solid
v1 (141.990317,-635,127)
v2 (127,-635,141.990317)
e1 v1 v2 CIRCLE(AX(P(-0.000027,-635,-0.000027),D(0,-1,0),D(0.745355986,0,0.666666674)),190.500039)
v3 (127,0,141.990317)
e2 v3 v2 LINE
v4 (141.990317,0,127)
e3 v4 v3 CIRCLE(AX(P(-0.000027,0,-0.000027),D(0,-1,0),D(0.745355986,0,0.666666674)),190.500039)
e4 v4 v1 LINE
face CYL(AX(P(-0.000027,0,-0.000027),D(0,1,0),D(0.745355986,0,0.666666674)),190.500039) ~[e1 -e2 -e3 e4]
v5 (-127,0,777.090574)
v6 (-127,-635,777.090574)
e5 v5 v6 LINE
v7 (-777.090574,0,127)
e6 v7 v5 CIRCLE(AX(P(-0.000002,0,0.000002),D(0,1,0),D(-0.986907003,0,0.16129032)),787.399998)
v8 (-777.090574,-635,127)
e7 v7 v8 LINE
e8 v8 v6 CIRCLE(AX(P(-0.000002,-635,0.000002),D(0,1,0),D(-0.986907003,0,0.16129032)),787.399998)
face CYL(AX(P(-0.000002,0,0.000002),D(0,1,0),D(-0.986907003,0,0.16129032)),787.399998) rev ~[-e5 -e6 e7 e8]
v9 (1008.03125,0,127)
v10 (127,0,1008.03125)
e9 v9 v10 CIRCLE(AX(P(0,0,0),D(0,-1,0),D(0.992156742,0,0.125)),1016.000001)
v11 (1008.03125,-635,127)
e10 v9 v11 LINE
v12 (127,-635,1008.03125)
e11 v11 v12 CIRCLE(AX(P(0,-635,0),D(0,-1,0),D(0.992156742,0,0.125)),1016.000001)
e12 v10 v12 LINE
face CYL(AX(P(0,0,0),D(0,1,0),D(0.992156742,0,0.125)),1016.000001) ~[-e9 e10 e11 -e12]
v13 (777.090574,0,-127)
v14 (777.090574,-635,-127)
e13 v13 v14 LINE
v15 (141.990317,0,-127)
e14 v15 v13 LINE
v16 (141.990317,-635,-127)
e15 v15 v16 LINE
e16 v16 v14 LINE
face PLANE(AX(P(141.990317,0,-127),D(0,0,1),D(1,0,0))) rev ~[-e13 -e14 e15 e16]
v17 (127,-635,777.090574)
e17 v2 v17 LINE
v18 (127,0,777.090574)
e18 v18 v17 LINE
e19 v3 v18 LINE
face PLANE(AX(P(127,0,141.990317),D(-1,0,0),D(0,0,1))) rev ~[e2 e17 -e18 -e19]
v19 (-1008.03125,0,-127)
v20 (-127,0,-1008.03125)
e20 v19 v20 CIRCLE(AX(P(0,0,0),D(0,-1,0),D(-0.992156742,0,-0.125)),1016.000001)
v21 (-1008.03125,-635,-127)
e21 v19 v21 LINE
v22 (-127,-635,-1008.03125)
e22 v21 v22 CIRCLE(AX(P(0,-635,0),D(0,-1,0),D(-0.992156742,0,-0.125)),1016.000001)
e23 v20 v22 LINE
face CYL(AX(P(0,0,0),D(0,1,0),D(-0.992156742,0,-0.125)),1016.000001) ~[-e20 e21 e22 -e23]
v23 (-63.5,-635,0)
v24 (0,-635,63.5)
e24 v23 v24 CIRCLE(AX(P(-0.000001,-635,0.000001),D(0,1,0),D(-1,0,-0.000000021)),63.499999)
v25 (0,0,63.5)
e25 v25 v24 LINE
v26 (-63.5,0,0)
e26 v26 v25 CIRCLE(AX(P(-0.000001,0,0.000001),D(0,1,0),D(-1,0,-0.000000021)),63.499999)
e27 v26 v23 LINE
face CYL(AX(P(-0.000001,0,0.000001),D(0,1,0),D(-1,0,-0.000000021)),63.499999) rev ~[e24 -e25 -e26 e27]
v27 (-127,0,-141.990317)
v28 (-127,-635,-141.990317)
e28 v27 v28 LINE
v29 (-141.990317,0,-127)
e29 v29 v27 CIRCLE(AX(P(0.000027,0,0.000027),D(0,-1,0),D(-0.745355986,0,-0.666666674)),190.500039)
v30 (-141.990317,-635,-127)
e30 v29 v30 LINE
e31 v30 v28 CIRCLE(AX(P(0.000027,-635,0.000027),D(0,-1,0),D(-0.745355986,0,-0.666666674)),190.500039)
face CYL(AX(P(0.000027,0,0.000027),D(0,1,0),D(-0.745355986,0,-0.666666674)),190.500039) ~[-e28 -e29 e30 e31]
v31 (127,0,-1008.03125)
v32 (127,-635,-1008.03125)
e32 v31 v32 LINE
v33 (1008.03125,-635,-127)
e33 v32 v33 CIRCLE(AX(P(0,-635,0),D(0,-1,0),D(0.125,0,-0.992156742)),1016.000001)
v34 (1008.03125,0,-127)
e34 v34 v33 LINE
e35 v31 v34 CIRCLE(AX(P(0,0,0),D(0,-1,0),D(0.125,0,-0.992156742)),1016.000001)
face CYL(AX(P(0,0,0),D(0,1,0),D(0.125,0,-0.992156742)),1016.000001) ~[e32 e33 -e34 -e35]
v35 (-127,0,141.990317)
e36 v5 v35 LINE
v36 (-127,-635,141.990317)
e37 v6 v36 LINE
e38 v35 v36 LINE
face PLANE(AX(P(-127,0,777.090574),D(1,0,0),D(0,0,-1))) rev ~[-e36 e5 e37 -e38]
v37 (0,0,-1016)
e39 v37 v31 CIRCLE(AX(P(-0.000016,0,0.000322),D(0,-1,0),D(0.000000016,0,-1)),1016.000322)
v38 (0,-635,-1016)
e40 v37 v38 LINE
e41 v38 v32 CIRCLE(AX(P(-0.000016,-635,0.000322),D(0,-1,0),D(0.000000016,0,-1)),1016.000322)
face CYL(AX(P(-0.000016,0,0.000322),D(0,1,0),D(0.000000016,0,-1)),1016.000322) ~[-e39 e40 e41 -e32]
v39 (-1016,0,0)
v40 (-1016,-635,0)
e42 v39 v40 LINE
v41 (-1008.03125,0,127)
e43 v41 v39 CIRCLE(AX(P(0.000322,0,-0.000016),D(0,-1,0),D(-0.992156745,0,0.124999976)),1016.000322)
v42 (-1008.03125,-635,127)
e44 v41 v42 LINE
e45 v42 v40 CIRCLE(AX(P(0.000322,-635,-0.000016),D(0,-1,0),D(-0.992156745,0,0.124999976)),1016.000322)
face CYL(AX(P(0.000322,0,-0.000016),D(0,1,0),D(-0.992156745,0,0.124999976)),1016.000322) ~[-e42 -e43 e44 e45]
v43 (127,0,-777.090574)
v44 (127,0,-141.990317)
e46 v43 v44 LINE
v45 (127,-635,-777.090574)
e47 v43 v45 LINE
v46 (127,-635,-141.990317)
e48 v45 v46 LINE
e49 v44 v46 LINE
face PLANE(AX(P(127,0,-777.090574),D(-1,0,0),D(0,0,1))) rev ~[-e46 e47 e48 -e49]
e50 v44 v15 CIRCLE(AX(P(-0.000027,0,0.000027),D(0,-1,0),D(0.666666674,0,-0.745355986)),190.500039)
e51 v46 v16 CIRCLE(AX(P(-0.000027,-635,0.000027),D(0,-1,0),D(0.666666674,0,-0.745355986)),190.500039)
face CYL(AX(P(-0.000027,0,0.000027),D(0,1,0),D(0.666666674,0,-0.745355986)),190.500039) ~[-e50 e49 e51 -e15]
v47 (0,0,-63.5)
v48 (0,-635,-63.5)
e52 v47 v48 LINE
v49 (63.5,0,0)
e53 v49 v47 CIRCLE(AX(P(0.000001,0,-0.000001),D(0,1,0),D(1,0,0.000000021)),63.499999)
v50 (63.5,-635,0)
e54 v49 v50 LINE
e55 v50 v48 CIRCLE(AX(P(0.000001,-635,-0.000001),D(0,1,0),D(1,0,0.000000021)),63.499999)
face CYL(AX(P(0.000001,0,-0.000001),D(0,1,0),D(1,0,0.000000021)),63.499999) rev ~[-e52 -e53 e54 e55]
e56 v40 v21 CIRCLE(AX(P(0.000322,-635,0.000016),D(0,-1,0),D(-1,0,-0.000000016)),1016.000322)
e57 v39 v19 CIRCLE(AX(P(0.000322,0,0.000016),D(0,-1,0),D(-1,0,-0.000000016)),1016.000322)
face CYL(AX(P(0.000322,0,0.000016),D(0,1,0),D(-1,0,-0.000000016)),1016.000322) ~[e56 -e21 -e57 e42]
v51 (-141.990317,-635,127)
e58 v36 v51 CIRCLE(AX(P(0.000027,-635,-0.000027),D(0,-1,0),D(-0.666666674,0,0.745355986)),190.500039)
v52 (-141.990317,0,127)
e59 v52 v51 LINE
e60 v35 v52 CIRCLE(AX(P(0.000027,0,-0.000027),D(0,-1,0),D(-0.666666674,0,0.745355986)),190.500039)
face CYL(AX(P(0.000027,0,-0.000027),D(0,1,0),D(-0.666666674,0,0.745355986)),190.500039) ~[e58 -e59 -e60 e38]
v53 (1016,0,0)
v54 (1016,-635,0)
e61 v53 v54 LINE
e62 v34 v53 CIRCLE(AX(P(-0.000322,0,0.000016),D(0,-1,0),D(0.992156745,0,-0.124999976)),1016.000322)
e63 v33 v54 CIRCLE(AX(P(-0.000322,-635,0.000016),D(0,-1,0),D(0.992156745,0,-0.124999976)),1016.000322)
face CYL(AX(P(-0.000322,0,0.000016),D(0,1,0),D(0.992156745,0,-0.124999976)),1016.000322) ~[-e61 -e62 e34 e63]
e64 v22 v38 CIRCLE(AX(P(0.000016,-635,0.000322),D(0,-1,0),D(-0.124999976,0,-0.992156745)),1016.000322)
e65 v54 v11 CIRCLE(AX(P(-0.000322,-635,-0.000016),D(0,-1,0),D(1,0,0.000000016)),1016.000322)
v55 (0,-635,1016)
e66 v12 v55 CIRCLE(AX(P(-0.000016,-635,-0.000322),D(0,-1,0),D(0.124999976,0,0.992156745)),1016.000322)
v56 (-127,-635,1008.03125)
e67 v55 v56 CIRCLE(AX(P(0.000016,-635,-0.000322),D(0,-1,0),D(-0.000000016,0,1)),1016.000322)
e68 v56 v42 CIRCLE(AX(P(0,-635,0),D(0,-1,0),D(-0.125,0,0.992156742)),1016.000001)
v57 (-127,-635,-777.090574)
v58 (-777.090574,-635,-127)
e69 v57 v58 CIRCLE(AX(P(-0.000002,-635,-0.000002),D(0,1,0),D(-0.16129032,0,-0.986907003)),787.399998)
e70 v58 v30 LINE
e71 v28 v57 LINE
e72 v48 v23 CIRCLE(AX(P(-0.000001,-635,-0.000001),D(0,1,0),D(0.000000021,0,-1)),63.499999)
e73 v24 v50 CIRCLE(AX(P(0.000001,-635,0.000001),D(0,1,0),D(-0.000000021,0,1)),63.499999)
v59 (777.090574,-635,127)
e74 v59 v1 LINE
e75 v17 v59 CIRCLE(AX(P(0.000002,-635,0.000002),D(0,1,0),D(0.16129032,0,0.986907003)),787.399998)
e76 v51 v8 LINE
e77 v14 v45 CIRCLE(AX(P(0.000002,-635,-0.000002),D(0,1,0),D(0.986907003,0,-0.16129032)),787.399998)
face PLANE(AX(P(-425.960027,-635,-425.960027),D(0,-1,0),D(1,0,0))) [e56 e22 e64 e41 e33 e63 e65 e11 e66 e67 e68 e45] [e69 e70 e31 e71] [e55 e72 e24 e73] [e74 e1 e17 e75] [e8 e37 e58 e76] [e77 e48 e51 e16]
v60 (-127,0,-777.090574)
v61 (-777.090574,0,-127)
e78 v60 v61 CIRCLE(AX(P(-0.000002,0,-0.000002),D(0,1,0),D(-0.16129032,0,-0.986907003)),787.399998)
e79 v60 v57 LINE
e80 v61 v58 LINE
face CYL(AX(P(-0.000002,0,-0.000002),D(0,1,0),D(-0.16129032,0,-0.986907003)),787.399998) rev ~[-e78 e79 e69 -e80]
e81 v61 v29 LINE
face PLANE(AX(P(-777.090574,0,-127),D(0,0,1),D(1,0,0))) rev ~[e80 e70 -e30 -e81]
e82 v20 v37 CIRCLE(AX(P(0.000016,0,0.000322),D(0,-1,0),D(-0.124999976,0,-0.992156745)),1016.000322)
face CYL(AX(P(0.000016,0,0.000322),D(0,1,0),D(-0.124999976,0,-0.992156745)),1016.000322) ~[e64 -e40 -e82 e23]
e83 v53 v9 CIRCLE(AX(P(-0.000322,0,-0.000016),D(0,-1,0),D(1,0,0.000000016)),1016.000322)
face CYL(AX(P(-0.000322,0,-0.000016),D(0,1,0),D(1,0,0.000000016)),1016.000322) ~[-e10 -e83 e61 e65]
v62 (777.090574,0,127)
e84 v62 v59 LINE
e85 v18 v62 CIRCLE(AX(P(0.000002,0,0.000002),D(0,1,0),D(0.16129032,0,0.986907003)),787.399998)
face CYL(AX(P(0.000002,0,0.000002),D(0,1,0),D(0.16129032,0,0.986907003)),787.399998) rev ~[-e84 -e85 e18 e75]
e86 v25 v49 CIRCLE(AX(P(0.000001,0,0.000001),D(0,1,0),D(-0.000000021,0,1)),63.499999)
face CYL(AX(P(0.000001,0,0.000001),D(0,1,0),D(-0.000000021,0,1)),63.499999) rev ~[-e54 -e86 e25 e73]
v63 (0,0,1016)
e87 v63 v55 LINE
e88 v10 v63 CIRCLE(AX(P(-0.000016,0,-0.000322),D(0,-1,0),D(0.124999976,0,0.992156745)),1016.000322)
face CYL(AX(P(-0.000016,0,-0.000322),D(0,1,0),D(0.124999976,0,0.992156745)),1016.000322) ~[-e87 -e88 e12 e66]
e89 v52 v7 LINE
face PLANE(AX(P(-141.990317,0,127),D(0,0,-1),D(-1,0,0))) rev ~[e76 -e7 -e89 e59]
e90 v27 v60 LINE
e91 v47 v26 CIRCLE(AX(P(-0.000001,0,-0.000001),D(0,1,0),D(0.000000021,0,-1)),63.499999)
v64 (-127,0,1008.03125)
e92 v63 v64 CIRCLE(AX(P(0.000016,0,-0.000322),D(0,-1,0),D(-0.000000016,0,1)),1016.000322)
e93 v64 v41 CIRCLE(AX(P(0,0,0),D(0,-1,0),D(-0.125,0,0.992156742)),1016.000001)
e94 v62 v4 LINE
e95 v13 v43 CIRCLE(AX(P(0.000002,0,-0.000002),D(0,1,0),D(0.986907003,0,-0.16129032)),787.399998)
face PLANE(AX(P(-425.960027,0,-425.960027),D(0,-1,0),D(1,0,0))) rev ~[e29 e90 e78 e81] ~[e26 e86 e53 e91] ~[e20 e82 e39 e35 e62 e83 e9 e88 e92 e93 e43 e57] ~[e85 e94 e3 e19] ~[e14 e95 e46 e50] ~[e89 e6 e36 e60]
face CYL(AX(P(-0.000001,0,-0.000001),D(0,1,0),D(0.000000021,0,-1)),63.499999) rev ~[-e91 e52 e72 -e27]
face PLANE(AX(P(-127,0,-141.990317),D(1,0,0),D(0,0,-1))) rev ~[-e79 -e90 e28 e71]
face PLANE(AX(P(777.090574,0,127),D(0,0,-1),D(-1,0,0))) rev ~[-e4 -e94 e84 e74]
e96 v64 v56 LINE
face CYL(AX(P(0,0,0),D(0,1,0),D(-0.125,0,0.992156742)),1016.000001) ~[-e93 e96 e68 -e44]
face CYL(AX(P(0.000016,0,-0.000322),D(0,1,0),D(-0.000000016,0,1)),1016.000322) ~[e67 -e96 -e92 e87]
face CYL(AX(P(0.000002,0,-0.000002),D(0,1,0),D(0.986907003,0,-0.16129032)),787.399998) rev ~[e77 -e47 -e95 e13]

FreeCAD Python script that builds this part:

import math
import FreeCAD as App
import Part
import Sketcher
from FreeCAD import Vector
Q = App.Units.Quantity

doc = App.newDocument("Part")
body = doc.addObject("PartDesign::Body", "Body")

# Sketch on XZ plane
sketch1 = body.newObject("Sketcher::SketchObject", "Sketch")
sketch1.AttachmentSupport = (doc.getObject("XZ_Plane"), [""])
sketch1.MapMode = "FlatFace"
sketch1.addGeometry([
    Part.ArcOfCircle(Part.Circle(Vector(0.000016, 0.000322, 0), Vector(0, 0, 1), 1016.000322), math.radians(-97.180754), math.radians(-90.000001)),  # 0
    Part.ArcOfCircle(Part.Circle(Vector(-0.000016, 0.000322, 0), Vector(0, 0, 1), 1016.000322), math.radians(-89.999999), math.radians(-82.819246)),  # 1
    Part.ArcOfCircle(Part.Circle(Vector(0, 0, 0), Vector(0, 0, 1), 1016.000001), math.radians(-82.819244), math.radians(-7.180756)),  # 2
    Part.ArcOfCircle(Part.Circle(Vector(-0.000322, 0.000016, 0), Vector(0, 0, 1), 1016.000322), math.radians(-7.180754), math.radians(-0.000001)),  # 3
    Part.ArcOfCircle(Part.Circle(Vector(-0.000322, -0.000016, 0), Vector(0, 0, 1), 1016.000322), math.radians(0.000001), math.radians(7.180754)),  # 4
    Part.ArcOfCircle(Part.Circle(Vector(0, 0, 0), Vector(0, 0, 1), 1016.000001), math.radians(7.180756), math.radians(82.819244)),  # 5
    Part.ArcOfCircle(Part.Circle(Vector(-0.000016, -0.000322, 0), Vector(0, 0, 1), 1016.000322), math.radians(82.819246), math.radians(89.999999)),  # 6
    Part.ArcOfCircle(Part.Circle(Vector(0.000016, -0.000322, 0), Vector(0, 0, 1), 1016.000322), math.radians(90.000001), math.radians(97.180754)),  # 7
    Part.ArcOfCircle(Part.Circle(Vector(0, 0, 0), Vector(0, 0, 1), 1016.000001), math.radians(97.180756), math.radians(172.819244)),  # 8
    Part.ArcOfCircle(Part.Circle(Vector(0.000322, -0.000016, 0), Vector(0, 0, 1), 1016.000322), math.radians(172.819246), math.radians(179.999999)),  # 9
    Part.ArcOfCircle(Part.Circle(Vector(0.000322, 0.000016, 0), Vector(0, 0, 1), 1016.000322), math.radians(-179.999999), math.radians(-172.819246)),  # 10
    Part.ArcOfCircle(Part.Circle(Vector(0, 0, 0), Vector(0, 0, 1), 1016.000001), math.radians(-172.819244), math.radians(-97.180756)),  # 11
    Part.LineSegment(Vector(-777.090574, -127, 0), Vector(-141.990317, -127, 0)),  # 12
    Part.ArcOfCircle(Part.Circle(Vector(0.000027, 0.000027, 0), Vector(0, 0, 1), 190.500039), math.radians(-138.189685), math.radians(-131.810315)),  # 13
    Part.LineSegment(Vector(-127, -141.990317, 0), Vector(-127, -777.090574, 0)),  # 14
    Part.ArcOfCircle(Part.Circle(Vector(-0.000002, -0.000002, 0), Vector(0, 0, 1), 787.399998), math.radians(-170.718201), math.radians(-99.281799)),  # 15
    Part.ArcOfCircle(Part.Circle(Vector(0.000001, -0.000001, 0), Vector(0, 0, 1), 63.499999), math.radians(-90.000001), math.radians(0.000001)),  # 16
    Part.ArcOfCircle(Part.Circle(Vector(-0.000001, -0.000001, 0), Vector(0, 0, 1), 63.499999), math.radians(179.999999), math.radians(270.000001)),  # 17
    Part.ArcOfCircle(Part.Circle(Vector(-0.000001, 0.000001, 0), Vector(0, 0, 1), 63.499999), math.radians(89.999999), math.radians(180.000001)),  # 18
    Part.ArcOfCircle(Part.Circle(Vector(0.000001, 0.000001, 0), Vector(0, 0, 1), 63.499999), math.radians(-0.000001), math.radians(90.000001)),  # 19
    Part.ArcOfCircle(Part.Circle(Vector(0.000002, -0.000002, 0), Vector(0, 0, 1), 787.399998), math.radians(-80.718201), math.radians(-9.281799)),  # 20
    Part.LineSegment(Vector(127, -777.090574, 0), Vector(127, -141.990317, 0)),  # 21
    Part.ArcOfCircle(Part.Circle(Vector(-0.000027, 0.000027, 0), Vector(0, 0, 1), 190.500039), math.radians(-48.189685), math.radians(-41.810315)),  # 22
    Part.LineSegment(Vector(141.990317, -127, 0), Vector(777.090574, -127, 0)),  # 23
    Part.ArcOfCircle(Part.Circle(Vector(-0.000002, 0.000002, 0), Vector(0, 0, 1), 787.399998), math.radians(99.281799), math.radians(170.718201)),  # 24
    Part.LineSegment(Vector(-127, 777.090574, 0), Vector(-127, 141.990317, 0)),  # 25
    Part.ArcOfCircle(Part.Circle(Vector(0.000027, -0.000027, 0), Vector(0, 0, 1), 190.500039), math.radians(131.810315), math.radians(138.189685)),  # 26
    Part.LineSegment(Vector(-141.990317, 127, 0), Vector(-777.090574, 127, 0)),  # 27
    Part.ArcOfCircle(Part.Circle(Vector(0.000002, 0.000002, 0), Vector(0, 0, 1), 787.399998), math.radians(9.281799), math.radians(80.718201)),  # 28
    Part.LineSegment(Vector(777.090574, 127, 0), Vector(141.990317, 127, 0)),  # 29
    Part.ArcOfCircle(Part.Circle(Vector(-0.000027, -0.000027, 0), Vector(0, 0, 1), 190.500039), math.radians(41.810315), math.radians(48.189685)),  # 30
    Part.LineSegment(Vector(127, 141.990317, 0), Vector(127, 777.090574, 0)),  # 31
], False)
sketch1.addConstraint([
    Sketcher.Constraint("Coincident", 0, 2, 1, 1),
    Sketcher.Constraint("Coincident", 1, 2, 2, 1),
    Sketcher.Constraint("Coincident", 2, 2, 3, 1),
    Sketcher.Constraint("Coincident", 3, 2, 4, 1),
    Sketcher.Constraint("Coincident", 4, 2, 5, 1),
    Sketcher.Constraint("Coincident", 5, 2, 6, 1),
    Sketcher.Constraint("Coincident", 6, 2, 7, 1),
    Sketcher.Constraint("Coincident", 7, 2, 8, 1),
    Sketcher.Constraint("Coincident", 8, 2, 9, 1),
    Sketcher.Constraint("Coincident", 9, 2, 10, 1),
    Sketcher.Constraint("Coincident", 10, 2, 11, 1),
    Sketcher.Constraint("Coincident", 11, 2, 0, 1),
    Sketcher.Constraint("Coincident", 12, 2, 13, 1),
    Sketcher.Constraint("Coincident", 13, 2, 14, 1),
    Sketcher.Constraint("Coincident", 14, 2, 15, 2),
    Sketcher.Constraint("Coincident", 15, 1, 12, 1),
    Sketcher.Constraint("Tangent", 16, 1, 17, 2),
    Sketcher.Constraint("Tangent", 17, 1, 18, 2),
    Sketcher.Constraint("Tangent", 18, 1, 19, 2),
    Sketcher.Constraint("Tangent", 19, 1, 16, 2),
    Sketcher.Constraint("Coincident", 20, 1, 21, 1),
    Sketcher.Constraint("Coincident", 21, 2, 22, 1),
    Sketcher.Constraint("Coincident", 22, 2, 23, 1),
    Sketcher.Constraint("Coincident", 23, 2, 20, 2),
    Sketcher.Constraint("Coincident", 24, 1, 25, 1),
    Sketcher.Constraint("Coincident", 25, 2, 26, 1),
    Sketcher.Constraint("Coincident", 26, 2, 27, 1),
    Sketcher.Constraint("Coincident", 27, 2, 24, 2),
    Sketcher.Constraint("Coincident", 28, 1, 29, 1),
    Sketcher.Constraint("Coincident", 29, 2, 30, 1),
    Sketcher.Constraint("Coincident", 30, 2, 31, 1),
    Sketcher.Constraint("Coincident", 31, 2, 28, 2),
    Sketcher.Constraint("Horizontal", 12),
    Sketcher.Constraint("Vertical", 14),
    Sketcher.Constraint("Vertical", 21),
    Sketcher.Constraint("Horizontal", 23),
    Sketcher.Constraint("Vertical", 25),
    Sketcher.Constraint("Horizontal", 27),
    Sketcher.Constraint("Horizontal", 29),
    Sketcher.Constraint("Vertical", 31),
    Sketcher.Constraint("Coincident", 2, 3, -1, 1),
    Sketcher.Constraint("Coincident", 5, 3, -1, 1),
    Sketcher.Constraint("Coincident", 8, 3, -1, 1),
    Sketcher.Constraint("Coincident", 11, 3, -1, 1),
    Sketcher.Constraint("Coincident", 15, 3, -1, 1),
    Sketcher.Constraint("Coincident", 16, 3, -1, 1),
    Sketcher.Constraint("Coincident", 20, 3, -1, 1),
    Sketcher.Constraint("Coincident", 24, 3, -1, 1),
    Sketcher.Constraint("Coincident", 28, 3, -1, 1),
    Sketcher.Constraint("Equal", 0, 1),
    Sketcher.Constraint("Equal", 1, 3),
    Sketcher.Constraint("Equal", 3, 4),
    Sketcher.Constraint("Equal", 2, 5),
    Sketcher.Constraint("Equal", 4, 6),
    Sketcher.Constraint("Equal", 6, 7),
    Sketcher.Constraint("Equal", 5, 8),
    Sketcher.Constraint("Equal", 7, 9),
    Sketcher.Constraint("Equal", 9, 10),
    Sketcher.Constraint("Equal", 8, 11),
    Sketcher.Constraint("Equal", 16, 17),
    Sketcher.Constraint("Equal", 15, 20),
    Sketcher.Constraint("Equal", 13, 22),
    Sketcher.Constraint("Equal", 20, 24),
    Sketcher.Constraint("Equal", 22, 26),
    Sketcher.Constraint("Equal", 24, 28),
    Sketcher.Constraint("Equal", 26, 30),
    Sketcher.Constraint("Symmetric", 22, 3, 26, 3, -1, 1),
    Sketcher.Constraint("Symmetric", 13, 3, 30, 3, -1, 1),
    Sketcher.Constraint("Symmetric", 0, 2, 6, 2, -1, 1),
    Sketcher.Constraint("Symmetric", 3, 2, 9, 2, -1, 1),
    Sketcher.Constraint("Symmetric", 13, 3, 22, 3, -2),
    Sketcher.Constraint("PointOnObject", 0, 2, -2),
    Sketcher.Constraint("PointOnObject", 3, 2, -1),
    Sketcher.Constraint("PointOnObject", 16, 1, -2),
    Sketcher.Constraint("PointOnObject", 17, 1, -1),
    Sketcher.Constraint("PointOnObject", 18, 1, -2),
    Sketcher.Constraint("PointOnObject", 19, 1, -1),
    Sketcher.Constraint("Horizontal", 5, 2, 7, 2),
    Sketcher.Constraint("Horizontal", 4, 2, 8, 2),
    Sketcher.Constraint("Horizontal", 2, 2, 10, 2),
    Sketcher.Constraint("Horizontal", 1, 2, 11, 2),
    Sketcher.Constraint("Horizontal", 10, 2, 12, 2),
    Sketcher.Constraint("Horizontal", 13, 2, 21, 2),
    Sketcher.Constraint("Horizontal", 8, 2, 26, 2),
    Sketcher.Constraint("Horizontal", 25, 2, 30, 2),
    Sketcher.Constraint("Vertical", 1, 2, 5, 2),
    Sketcher.Constraint("Vertical", 11, 2, 13, 2),
    Sketcher.Constraint("Vertical", 12, 2, 26, 2),
    Sketcher.Constraint("Vertical", 22, 2, 29, 2),
    Sketcher.Constraint("Vertical", 21, 2, 30, 2),
    Sketcher.Constraint("Equal", 12, 23),
    Sketcher.Constraint("Equal", 29, 14),
    Sketcher.Constraint("Radius", 2, Q("40 in")),
    Sketcher.Constraint("Radius", 15, Q("30.9999999 in")),
    Sketcher.Constraint("Radius", 16, Q("2.4999999 in")),
    Sketcher.Constraint("DistanceY", 0, 2, -1, 1, Q("40 in")),
    Sketcher.Constraint("DistanceX", -1, 1, 3, 2, Q("40 in")),
    Sketcher.Constraint("DistanceY", 12, 2, -1, 1, Q("5 in")),
    Sketcher.Constraint("DistanceX", 14, 2, -1, 1, Q("5 in")),
    Sketcher.Constraint("Radius", 13, 190.500039),
    Sketcher.Constraint("Radius", 0, 1016.000322),
    Sketcher.Constraint("DistanceX", 12, 2, 6, 3, 141.990301),
])
pad1 = body.newObject("PartDesign::Pad", "Pad")
pad1.Profile = sketch1
pad1.Length = Q("25 in")

doc.recompute()
